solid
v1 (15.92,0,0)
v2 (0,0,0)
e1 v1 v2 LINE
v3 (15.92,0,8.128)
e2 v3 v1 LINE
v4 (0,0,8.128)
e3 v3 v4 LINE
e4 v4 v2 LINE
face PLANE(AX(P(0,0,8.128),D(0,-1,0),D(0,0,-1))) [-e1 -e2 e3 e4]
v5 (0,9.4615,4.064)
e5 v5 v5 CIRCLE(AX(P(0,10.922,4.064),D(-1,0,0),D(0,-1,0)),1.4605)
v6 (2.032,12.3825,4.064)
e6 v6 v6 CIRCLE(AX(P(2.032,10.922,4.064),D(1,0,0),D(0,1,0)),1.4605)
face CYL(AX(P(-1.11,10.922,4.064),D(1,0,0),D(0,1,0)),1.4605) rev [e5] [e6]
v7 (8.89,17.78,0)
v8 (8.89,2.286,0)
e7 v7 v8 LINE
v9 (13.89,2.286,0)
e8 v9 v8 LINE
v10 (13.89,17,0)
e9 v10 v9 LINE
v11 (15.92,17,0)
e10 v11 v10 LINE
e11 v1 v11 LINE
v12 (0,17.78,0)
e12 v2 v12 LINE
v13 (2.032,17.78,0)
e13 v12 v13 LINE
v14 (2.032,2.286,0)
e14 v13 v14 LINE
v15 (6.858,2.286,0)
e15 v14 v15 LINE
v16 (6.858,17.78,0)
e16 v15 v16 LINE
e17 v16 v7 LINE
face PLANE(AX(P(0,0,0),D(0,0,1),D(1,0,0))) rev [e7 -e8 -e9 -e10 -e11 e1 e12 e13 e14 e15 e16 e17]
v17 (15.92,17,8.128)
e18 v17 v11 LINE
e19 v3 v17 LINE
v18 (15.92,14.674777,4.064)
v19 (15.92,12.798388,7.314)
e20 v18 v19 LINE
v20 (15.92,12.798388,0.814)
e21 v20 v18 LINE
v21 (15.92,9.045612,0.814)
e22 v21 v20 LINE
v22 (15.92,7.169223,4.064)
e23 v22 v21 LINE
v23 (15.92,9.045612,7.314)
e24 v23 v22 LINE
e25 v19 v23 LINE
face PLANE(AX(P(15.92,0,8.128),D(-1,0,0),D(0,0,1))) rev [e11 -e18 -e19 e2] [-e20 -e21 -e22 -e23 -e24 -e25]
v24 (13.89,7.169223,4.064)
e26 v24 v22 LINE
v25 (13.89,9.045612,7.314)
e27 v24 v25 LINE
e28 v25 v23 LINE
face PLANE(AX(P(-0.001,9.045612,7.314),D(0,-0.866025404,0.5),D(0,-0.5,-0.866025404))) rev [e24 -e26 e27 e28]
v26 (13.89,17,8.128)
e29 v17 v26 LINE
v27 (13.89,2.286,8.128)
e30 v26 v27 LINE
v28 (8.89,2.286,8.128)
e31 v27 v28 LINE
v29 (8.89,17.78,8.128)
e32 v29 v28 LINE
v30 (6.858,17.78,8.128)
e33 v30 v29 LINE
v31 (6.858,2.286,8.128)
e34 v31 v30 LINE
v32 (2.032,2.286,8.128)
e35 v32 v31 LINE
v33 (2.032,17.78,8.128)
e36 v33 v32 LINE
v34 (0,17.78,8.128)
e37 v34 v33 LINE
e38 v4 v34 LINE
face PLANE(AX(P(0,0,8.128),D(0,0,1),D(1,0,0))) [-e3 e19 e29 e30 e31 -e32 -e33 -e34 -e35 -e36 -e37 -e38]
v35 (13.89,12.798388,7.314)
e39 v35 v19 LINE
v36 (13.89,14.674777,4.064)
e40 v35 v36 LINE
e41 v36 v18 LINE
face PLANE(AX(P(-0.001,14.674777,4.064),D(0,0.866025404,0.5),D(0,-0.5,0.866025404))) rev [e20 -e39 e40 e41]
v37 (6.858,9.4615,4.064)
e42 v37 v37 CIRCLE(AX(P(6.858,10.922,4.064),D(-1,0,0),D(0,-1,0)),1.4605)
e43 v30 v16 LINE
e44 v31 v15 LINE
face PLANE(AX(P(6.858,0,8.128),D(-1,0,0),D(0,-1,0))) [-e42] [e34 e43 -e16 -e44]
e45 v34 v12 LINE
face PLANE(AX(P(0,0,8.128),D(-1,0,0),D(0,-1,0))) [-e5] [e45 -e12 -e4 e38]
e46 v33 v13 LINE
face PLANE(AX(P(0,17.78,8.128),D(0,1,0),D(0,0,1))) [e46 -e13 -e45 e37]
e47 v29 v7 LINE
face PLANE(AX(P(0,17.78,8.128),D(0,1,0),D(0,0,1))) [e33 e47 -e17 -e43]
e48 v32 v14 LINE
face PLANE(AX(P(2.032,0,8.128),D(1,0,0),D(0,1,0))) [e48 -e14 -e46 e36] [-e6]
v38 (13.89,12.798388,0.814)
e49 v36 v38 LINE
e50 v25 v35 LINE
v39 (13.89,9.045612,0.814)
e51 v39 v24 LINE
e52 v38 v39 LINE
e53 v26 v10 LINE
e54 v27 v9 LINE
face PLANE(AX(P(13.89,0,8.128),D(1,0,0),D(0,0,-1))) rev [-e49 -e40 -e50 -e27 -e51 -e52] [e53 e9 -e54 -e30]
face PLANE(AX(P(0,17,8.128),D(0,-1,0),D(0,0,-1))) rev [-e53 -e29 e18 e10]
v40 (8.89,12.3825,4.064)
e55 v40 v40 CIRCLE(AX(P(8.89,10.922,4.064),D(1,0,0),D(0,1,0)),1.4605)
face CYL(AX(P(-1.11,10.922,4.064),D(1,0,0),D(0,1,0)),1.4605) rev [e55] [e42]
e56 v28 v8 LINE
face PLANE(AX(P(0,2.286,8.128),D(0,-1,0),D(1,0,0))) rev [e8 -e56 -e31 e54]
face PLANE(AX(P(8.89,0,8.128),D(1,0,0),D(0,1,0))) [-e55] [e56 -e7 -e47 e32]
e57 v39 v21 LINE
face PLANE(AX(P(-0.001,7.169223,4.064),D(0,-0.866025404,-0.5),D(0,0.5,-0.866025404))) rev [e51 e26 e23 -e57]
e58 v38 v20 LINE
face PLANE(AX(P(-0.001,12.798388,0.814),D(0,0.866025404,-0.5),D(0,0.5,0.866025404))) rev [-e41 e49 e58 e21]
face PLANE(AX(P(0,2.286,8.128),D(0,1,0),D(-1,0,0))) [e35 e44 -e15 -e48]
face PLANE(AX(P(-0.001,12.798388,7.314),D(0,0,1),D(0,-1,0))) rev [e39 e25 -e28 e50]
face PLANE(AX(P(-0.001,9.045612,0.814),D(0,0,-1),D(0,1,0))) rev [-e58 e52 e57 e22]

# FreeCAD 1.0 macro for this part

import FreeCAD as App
import Part
import Sketcher
from FreeCAD import Vector
Q = App.Units.Quantity

doc = App.newDocument("Part")
body = doc.addObject("PartDesign::Body", "Body")

# Sketch on XY plane
sketch1 = doc.addObject("Sketcher::SketchObject", "Sketch")
body.addObject(sketch1)
sketch1.AttachmentSupport = (doc.XY_Plane, [""])
sketch1.MapMode = "FlatFace"
sketch1.addGeometry([
    Part.LineSegment(Vector(2.032, 17.78, 0), Vector(0, 17.78, 0)),  # 0
    Part.LineSegment(Vector(0, 17.78, 0), Vector(0, 0, 0)),  # 1
    Part.LineSegment(Vector(0, 0, 0), Vector(15.92, 0, 0)),  # 2
    Part.LineSegment(Vector(15.92, 0, 0), Vector(15.92, 17, 0)),  # 3
    Part.LineSegment(Vector(15.92, 17, 0), Vector(13.89, 17, 0)),  # 4
    Part.LineSegment(Vector(13.89, 17, 0), Vector(13.89, 2.286, 0)),  # 5
    Part.LineSegment(Vector(13.89, 2.286, 0), Vector(8.89, 2.286, 0)),  # 6
    Part.LineSegment(Vector(8.89, 2.286, 0), Vector(8.89, 17.78, 0)),  # 7
    Part.LineSegment(Vector(8.89, 17.78, 0), Vector(6.858, 17.78, 0)),  # 8
    Part.LineSegment(Vector(6.858, 17.78, 0), Vector(6.858, 2.286, 0)),  # 9
    Part.LineSegment(Vector(6.858, 2.286, 0), Vector(2.032, 2.286, 0)),  # 10
    Part.LineSegment(Vector(2.032, 2.286, 0), Vector(2.032, 17.78, 0)),  # 11
], False)
sketch1.addConstraint([
    Sketcher.Constraint("Coincident", 0, 2, 1, 1),
    Sketcher.Constraint("Coincident", 1, 2, 2, 1),
    Sketcher.Constraint("Coincident", 2, 2, 3, 1),
    Sketcher.Constraint("Coincident", 3, 2, 4, 1),
    Sketcher.Constraint("Coincident", 4, 2, 5, 1),
    Sketcher.Constraint("Coincident", 5, 2, 6, 1),
    Sketcher.Constraint("Coincident", 6, 2, 7, 1),
    Sketcher.Constraint("Coincident", 7, 2, 8, 1),
    Sketcher.Constraint("Coincident", 8, 2, 9, 1),
    Sketcher.Constraint("Coincident", 9, 2, 10, 1),
    Sketcher.Constraint("Coincident", 10, 2, 11, 1),
    Sketcher.Constraint("Coincident", 11, 2, 0, 1),
    Sketcher.Constraint("Horizontal", 0),
    Sketcher.Constraint("Vertical", 1),
    Sketcher.Constraint("Horizontal", 2),
    Sketcher.Constraint("Vertical", 3),
    Sketcher.Constraint("Horizontal", 4),
    Sketcher.Constraint("Vertical", 5),
    Sketcher.Constraint("Horizontal", 6),
    Sketcher.Constraint("Vertical", 7),
    Sketcher.Constraint("Horizontal", 8),
    Sketcher.Constraint("Vertical", 9),
    Sketcher.Constraint("Horizontal", 10),
    Sketcher.Constraint("Vertical", 11),
    Sketcher.Constraint("Coincident", 1, 2, -1, 1),
    Sketcher.Constraint("Horizontal", 0, 2, 7, 2),
    Sketcher.Constraint("Horizontal", 6, 2, 9, 2),
    Sketcher.Constraint("Equal", 0, 8),
    Sketcher.Constraint("DistanceY", 1, 2, 1, 1, Q("0.7 in")),
    Sketcher.Constraint("DistanceX", 0, 2, 0, 1, Q("0.08 in")),
    Sketcher.Constraint("DistanceX", 10, 2, 10, 1, Q("0.19 in")),
    Sketcher.Constraint("DistanceY", 7, 1, 7, 2, Q("0.61 in")),
    Sketcher.Constraint("DistanceX", 2, 1, 2, 2, 15.92),
    Sketcher.Constraint("DistanceX", 4, 2, 4, 1, 2.03),
    Sketcher.Constraint("DistanceY", 3, 1, 3, 2, 17.0),
])
pad1 = doc.addObject("PartDesign::Pad", "Pad")
body.addObject(pad1)
pad1.Profile = sketch1
pad1.Length = Q("0.32 in")

# Sketch on YZ plane
sketch2 = doc.addObject("Sketcher::SketchObject", "Sketch001")
body.addObject(sketch2)
sketch2.AttachmentSupport = (doc.YZ_Plane, [""])
sketch2.MapMode = "FlatFace"
sketch2.AttachmentOffset = App.Placement(Vector(0, 0, 0.35 * 25.4), App.Rotation())
sketch2.addGeometry(Part.Circle(Vector(10.922, 4.064, 0), Vector(0, 0, 1), 1.4605), False)
sketch2.addConstraint([
    Sketcher.Constraint("Diameter", 0, Q("0.115 in")),
    Sketcher.Constraint("DistanceX", -1, 1, 0, 3, Q("0.43 in")),
    Sketcher.Constraint("DistanceY", -1, 1, 0, 3, Q("0.16 in")),
])
pocket1 = doc.addObject("PartDesign::Pocket", "Pocket")
body.addObject(pocket1)
pocket1.Profile = sketch2
pocket1.Length = 10

# Sketch on YZ plane
sketch3 = doc.addObject("Sketcher::SketchObject", "Sketch002")
body.addObject(sketch3)
sketch3.AttachmentSupport = (doc.YZ_Plane, [""])
sketch3.MapMode = "FlatFace"
sketch3.AttachmentOffset = App.Placement(Vector(0, 0, 15.92), App.Rotation())
sketch3.addGeometry([
    Part.LineSegment(Vector(14.674777, 4.064, 0), Vector(12.798388, 7.314, 0)),  # 0
    Part.LineSegment(Vector(12.798388, 7.314, 0), Vector(9.045612, 7.314, 0)),  # 1
    Part.LineSegment(Vector(9.045612, 7.314, 0), Vector(7.169223, 4.064, 0)),  # 2
    Part.LineSegment(Vector(7.169223, 4.064, 0), Vector(9.045612, 0.814, 0)),  # 3
    Part.LineSegment(Vector(9.045612, 0.814, 0), Vector(12.798388, 0.814, 0)),  # 4
    Part.LineSegment(Vector(12.798388, 0.814, 0), Vector(14.674777, 4.064, 0)),  # 5
], False)
sketch3.addConstraint([
    Sketcher.Constraint("Coincident", 0, 2, 1, 1),
    Sketcher.Constraint("Coincident", 1, 2, 2, 1),
    Sketcher.Constraint("Coincident", 2, 2, 3, 1),
    Sketcher.Constraint("Coincident", 3, 2, 4, 1),
    Sketcher.Constraint("Coincident", 4, 2, 5, 1),
    Sketcher.Constraint("Coincident", 5, 2, 0, 1),
    Sketcher.Constraint("Horizontal", 1),
    Sketcher.Constraint("Horizontal", 4),
    Sketcher.Constraint("Parallel", 0, 3),
    Sketcher.Constraint("Parallel", 2, 5),
    Sketcher.Constraint("Horizontal", 2, 2, 5, 2),
    Sketcher.Constraint("Vertical", 1, 2, 3, 2),
    Sketcher.Constraint("Vertical", 0, 2, 4, 2),
    Sketcher.Constraint("Angle", 0, Q("120 deg")),
    Sketcher.Constraint("DistanceY", -1, 1, 2, 2, Q("0.16 in")),
    Sketcher.Constraint("DistanceY", -1, 1, 0, 2, 7.314),
    Sketcher.Constraint("DistanceX", 1, 2, 1, 1, 3.752777),
    Sketcher.Constraint("DistanceX", -1, 1, 0, 2, 12.798388),
])
pocket2 = doc.addObject("PartDesign::Pocket", "Pocket001")
body.addObject(pocket2)
pocket2.Profile = sketch3
pocket2.Type = "UpToFirst"

doc.recompute()
